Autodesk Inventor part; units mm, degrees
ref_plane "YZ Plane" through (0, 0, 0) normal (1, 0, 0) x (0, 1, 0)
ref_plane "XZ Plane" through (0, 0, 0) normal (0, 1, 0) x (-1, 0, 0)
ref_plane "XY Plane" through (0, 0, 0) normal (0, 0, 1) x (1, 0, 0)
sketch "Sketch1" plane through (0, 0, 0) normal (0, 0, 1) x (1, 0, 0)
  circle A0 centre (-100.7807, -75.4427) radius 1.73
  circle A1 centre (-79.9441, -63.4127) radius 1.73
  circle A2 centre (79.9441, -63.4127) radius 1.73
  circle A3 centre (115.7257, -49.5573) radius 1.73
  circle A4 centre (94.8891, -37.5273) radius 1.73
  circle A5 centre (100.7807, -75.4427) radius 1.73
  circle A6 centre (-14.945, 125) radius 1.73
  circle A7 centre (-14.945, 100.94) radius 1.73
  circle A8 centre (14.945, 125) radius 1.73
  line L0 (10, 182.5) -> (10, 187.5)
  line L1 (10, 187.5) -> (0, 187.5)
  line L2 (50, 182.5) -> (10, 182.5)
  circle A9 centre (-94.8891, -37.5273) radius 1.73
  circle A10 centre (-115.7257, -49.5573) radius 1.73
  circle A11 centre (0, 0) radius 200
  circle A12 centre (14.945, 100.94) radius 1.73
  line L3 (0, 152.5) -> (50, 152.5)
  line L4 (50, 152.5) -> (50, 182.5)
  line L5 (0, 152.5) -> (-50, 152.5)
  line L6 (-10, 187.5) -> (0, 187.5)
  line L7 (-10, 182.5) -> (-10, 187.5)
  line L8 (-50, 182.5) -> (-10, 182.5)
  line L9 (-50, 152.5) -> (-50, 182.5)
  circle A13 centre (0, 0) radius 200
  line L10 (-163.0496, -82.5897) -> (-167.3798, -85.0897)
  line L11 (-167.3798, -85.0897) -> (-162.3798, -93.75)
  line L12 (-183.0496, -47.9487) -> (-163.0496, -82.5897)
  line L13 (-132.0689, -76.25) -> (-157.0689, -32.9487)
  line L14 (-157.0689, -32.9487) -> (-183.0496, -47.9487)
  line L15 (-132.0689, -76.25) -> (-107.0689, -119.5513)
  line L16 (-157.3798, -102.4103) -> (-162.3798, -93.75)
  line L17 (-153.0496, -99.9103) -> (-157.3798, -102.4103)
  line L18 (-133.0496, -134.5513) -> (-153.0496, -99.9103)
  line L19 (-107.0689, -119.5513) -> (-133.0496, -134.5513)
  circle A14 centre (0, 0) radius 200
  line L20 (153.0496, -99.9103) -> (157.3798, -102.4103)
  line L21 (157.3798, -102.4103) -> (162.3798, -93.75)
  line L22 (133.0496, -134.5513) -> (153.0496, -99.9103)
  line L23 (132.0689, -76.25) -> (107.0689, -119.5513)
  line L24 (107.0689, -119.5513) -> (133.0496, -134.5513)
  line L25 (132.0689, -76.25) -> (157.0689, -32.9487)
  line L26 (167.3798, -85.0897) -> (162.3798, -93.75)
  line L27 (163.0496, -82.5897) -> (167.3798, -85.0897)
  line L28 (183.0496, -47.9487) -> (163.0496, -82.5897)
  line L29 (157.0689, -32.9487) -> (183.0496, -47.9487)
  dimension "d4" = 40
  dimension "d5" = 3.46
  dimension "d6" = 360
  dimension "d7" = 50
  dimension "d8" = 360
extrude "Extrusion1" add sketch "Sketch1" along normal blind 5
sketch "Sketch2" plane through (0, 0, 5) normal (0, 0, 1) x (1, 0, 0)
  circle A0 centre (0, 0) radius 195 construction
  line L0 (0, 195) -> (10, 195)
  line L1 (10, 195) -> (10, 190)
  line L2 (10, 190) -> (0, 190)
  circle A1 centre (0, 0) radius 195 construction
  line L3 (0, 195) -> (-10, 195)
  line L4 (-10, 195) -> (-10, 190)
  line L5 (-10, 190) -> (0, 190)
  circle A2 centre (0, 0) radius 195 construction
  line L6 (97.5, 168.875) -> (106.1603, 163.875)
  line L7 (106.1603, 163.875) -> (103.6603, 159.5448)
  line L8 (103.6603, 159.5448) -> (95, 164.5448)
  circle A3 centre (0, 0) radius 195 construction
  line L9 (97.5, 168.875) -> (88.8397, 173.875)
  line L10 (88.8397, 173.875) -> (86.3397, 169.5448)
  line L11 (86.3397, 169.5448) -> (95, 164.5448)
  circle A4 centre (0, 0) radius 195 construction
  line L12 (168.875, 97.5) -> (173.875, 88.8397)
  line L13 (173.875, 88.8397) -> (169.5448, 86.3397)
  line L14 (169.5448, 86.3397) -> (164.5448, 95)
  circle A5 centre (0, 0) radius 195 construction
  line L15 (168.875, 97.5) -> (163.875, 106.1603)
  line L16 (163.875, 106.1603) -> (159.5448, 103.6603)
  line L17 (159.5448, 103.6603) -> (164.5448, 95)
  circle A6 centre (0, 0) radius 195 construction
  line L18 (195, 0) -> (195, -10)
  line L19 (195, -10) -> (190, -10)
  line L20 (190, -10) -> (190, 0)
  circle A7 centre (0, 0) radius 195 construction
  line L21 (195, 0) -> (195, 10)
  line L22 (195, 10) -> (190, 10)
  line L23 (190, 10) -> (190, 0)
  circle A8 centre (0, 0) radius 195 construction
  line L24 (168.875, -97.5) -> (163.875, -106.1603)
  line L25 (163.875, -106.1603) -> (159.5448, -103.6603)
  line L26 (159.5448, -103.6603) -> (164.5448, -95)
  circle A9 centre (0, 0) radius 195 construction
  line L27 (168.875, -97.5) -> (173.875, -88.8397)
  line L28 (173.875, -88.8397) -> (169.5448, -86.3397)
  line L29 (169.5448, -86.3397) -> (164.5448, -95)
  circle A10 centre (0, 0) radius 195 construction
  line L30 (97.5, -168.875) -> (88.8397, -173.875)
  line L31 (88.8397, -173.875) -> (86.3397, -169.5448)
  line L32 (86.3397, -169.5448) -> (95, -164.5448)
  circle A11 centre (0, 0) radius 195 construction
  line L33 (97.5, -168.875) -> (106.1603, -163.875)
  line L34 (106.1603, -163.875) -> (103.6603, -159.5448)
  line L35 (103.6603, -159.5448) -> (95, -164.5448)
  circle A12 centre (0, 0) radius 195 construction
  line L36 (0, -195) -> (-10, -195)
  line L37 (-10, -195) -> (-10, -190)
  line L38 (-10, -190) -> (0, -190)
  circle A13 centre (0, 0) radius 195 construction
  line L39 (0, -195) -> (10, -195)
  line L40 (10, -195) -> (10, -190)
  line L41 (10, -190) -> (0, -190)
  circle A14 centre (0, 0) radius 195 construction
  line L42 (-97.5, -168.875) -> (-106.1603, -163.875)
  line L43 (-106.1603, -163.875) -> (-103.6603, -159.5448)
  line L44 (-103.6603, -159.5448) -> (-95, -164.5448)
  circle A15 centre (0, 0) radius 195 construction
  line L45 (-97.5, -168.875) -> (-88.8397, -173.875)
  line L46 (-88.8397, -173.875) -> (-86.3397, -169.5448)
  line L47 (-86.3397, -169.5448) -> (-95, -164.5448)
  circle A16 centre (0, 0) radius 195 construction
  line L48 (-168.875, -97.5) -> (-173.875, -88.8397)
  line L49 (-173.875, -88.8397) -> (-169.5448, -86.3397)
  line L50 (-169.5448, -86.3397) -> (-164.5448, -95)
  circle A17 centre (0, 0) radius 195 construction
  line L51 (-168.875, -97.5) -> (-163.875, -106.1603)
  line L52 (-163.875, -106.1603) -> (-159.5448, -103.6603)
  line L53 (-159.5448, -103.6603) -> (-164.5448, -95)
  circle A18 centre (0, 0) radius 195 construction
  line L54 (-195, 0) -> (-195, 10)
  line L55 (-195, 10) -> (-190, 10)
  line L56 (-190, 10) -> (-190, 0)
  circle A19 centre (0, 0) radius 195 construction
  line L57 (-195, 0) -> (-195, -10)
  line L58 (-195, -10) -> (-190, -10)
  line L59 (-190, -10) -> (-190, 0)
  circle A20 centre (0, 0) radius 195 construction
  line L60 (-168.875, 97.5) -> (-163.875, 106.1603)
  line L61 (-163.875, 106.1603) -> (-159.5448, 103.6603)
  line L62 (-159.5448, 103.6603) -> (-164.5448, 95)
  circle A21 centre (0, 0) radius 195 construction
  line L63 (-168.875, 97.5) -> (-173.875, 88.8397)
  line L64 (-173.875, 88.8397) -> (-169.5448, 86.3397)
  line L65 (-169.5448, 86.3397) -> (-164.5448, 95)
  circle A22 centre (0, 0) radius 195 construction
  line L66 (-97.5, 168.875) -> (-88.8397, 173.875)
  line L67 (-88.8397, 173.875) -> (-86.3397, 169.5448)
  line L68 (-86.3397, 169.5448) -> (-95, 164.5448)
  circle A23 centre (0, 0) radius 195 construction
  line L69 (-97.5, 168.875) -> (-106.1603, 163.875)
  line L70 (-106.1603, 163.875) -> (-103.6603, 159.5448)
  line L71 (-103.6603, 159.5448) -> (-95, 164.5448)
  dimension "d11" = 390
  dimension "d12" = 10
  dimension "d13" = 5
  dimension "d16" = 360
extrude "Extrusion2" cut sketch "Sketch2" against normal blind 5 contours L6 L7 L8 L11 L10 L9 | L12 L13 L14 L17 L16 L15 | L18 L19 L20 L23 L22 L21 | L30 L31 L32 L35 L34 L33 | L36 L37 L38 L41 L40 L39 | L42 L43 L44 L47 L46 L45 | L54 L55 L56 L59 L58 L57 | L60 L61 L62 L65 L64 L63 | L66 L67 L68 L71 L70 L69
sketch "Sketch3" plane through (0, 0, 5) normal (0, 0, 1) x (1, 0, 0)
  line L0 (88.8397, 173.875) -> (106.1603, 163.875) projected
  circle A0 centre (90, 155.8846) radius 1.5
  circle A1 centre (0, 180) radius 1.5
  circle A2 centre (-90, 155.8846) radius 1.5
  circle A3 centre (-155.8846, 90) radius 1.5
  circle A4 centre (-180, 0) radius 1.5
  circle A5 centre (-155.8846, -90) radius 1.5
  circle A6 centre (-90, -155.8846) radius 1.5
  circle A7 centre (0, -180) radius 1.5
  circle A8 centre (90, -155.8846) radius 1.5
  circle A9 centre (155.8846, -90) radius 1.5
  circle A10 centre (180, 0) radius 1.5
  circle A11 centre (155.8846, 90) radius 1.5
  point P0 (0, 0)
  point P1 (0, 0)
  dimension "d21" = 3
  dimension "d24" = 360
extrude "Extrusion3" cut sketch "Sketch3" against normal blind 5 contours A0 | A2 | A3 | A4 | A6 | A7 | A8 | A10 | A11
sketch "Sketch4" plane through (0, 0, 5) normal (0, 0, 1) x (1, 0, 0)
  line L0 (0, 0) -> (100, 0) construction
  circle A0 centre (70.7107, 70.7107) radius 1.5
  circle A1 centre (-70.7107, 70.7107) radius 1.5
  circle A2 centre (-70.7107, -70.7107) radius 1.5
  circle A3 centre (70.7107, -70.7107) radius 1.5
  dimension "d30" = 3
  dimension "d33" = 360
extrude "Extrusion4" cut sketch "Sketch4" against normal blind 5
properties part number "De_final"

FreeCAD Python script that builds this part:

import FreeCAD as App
import Part
import Sketcher

V = App.Vector
Q = App.Units.Quantity

doc = App.newDocument("Part")
params = doc.addObject("Spreadsheet::Sheet", "Params")
for row, (alias, value) in enumerate([
    ("sketch1_diameter", "3.46 mm"),
    ("sketch1_width", "40 mm"),
    ("sketch1_length", "40 mm"),
    ("sketch1_diameter2", "400 mm"),
    ("sketch1_height", "5 mm"),
    ("pad1_length", "5 mm"),
    ("sketch2_width", "5 mm"),
    ("sketch2_length", "5 mm"),
    ("pocket1_length", "5 mm"),
    ("sketch3_diameter", "3 mm"),
    ("pocket2_length", "5 mm"),
    ("sketch4_diameter", "3 mm"),
    ("pocket3_length", "5 mm"),
], start=1):
    params.set(f"A{row}", alias)
    params.set(f"B{row}", "=" + value)
    params.setAlias(f"B{row}", alias)

body = doc.addObject("PartDesign::Body", "Body")

# Sketch on XY plane
sketch1 = body.newObject("Sketcher::SketchObject", "Sketch")
sketch1.AttachmentSupport = (doc.getObject("XY_Plane"), [""])
sketch1.MapMode = "FlatFace"
sketch1.addGeometry(Part.Circle(V(0, 0, 0), V(0, 0, 1), 200), False)
sketch1.addGeometry(Part.LineSegment(V(-167.4, -85.1, 0), V(-163, -82.6, 0)), False)
sketch1.addGeometry(Part.LineSegment(V(-163, -82.6, 0), V(-183, -47.9, 0)), False)
sketch1.addGeometry(Part.LineSegment(V(-183, -47.9, 0), V(-157.1, -32.9, 0)), False)
sketch1.addGeometry(Part.LineSegment(V(-157.1, -32.9, 0), V(-107.1, -119.6, 0)), False)
sketch1.addGeometry(Part.LineSegment(V(-107.1, -119.6, 0), V(-133, -134.6, 0)), False)
sketch1.addGeometry(Part.LineSegment(V(-133, -134.6, 0), V(-153, -99.9, 0)), False)
sketch1.addGeometry(Part.LineSegment(V(-153, -99.9, 0), V(-157.4, -102.4, 0)), False)
sketch1.addGeometry(Part.LineSegment(V(-157.4, -102.4, 0), V(-167.4, -85.1, 0)), False)
sketch1.addGeometry(Part.Circle(V(-100.8, -75.4, 0), V(0, 0, 1), 1.7), False)
sketch1.addGeometry(Part.Circle(V(-115.7, -49.6, 0), V(0, 0, 1), 1.7), False)
sketch1.addGeometry(Part.Circle(V(-79.9, -63.4, 0), V(0, 0, 1), 1.7), False)
sketch1.addGeometry(Part.Circle(V(-94.9, -37.5, 0), V(0, 0, 1), 1.7), False)
sketch1.addGeometry(Part.Circle(V(79.9, -63.4, 0), V(0, 0, 1), 1.7), False)
sketch1.addGeometry(Part.Circle(V(94.9, -37.5, 0), V(0, 0, 1), 1.7), False)
sketch1.addGeometry(Part.Circle(V(100.8, -75.4, 0), V(0, 0, 1), 1.7), False)
sketch1.addGeometry(Part.LineSegment(V(157.4, -102.4, 0), V(153, -99.9, 0)), False)
sketch1.addGeometry(Part.LineSegment(V(153, -99.9, 0), V(133, -134.6, 0)), False)
sketch1.addGeometry(Part.LineSegment(V(133, -134.6, 0), V(107.1, -119.6, 0)), False)
sketch1.addGeometry(Part.LineSegment(V(107.1, -119.6, 0), V(157.1, -32.9, 0)), False)
sketch1.addGeometry(Part.LineSegment(V(157.1, -32.9, 0), V(183, -47.9, 0)), False)
sketch1.addGeometry(Part.LineSegment(V(183, -47.9, 0), V(163, -82.6, 0)), False)
sketch1.addGeometry(Part.LineSegment(V(163, -82.6, 0), V(167.4, -85.1, 0)), False)
sketch1.addGeometry(Part.LineSegment(V(167.4, -85.1, 0), V(157.4, -102.4, 0)), False)
sketch1.addGeometry(Part.Circle(V(115.7, -49.6, 0), V(0, 0, 1), 1.7), False)
sketch1.addGeometry(Part.Circle(V(-14.9, 100.9, 0), V(0, 0, 1), 1.7), False)
sketch1.addGeometry(Part.Circle(V(-14.9, 125, 0), V(0, 0, 1), 1.7), False)
sketch1.addGeometry(Part.Circle(V(14.9, 100.9, 0), V(0, 0, 1), 1.7), False)
sketch1.addGeometry(Part.Circle(V(14.9, 125, 0), V(0, 0, 1), 1.7), False)
sketch1.addGeometry(Part.LineSegment(V(10, 187.5, 0), V(10, 182.5, 0)), False)
sketch1.addGeometry(Part.LineSegment(V(10, 182.5, 0), V(50, 182.5, 0)), False)
sketch1.addGeometry(Part.LineSegment(V(50, 182.5, 0), V(50, 152.5, 0)), False)
sketch1.addGeometry(Part.LineSegment(V(50, 152.5, 0), V(-50, 152.5, 0)), False)
sketch1.addGeometry(Part.LineSegment(V(-50, 152.5, 0), V(-50, 182.5, 0)), False)
sketch1.addGeometry(Part.LineSegment(V(-50, 182.5, 0), V(-10, 182.5, 0)), False)
sketch1.addGeometry(Part.LineSegment(V(-10, 182.5, 0), V(-10, 187.5, 0)), False)
sketch1.addGeometry(Part.LineSegment(V(-10, 187.5, 0), V(10, 187.5, 0)), False)
sketch1.addConstraint(Sketcher.Constraint("Coincident", 1, 2, 2, 1))
sketch1.addConstraint(Sketcher.Constraint("Coincident", 2, 2, 3, 1))
sketch1.addConstraint(Sketcher.Constraint("Coincident", 3, 2, 4, 1))
sketch1.addConstraint(Sketcher.Constraint("Coincident", 4, 2, 5, 1))
sketch1.addConstraint(Sketcher.Constraint("Coincident", 5, 2, 6, 1))
sketch1.addConstraint(Sketcher.Constraint("Coincident", 6, 2, 7, 1))
sketch1.addConstraint(Sketcher.Constraint("Coincident", 7, 2, 8, 1))
sketch1.addConstraint(Sketcher.Constraint("Coincident", 8, 2, 1, 1))
sketch1.addConstraint(Sketcher.Constraint("Coincident", 16, 2, 17, 1))
sketch1.addConstraint(Sketcher.Constraint("Coincident", 17, 2, 18, 1))
sketch1.addConstraint(Sketcher.Constraint("Coincident", 18, 2, 19, 1))
sketch1.addConstraint(Sketcher.Constraint("Coincident", 19, 2, 20, 1))
sketch1.addConstraint(Sketcher.Constraint("Coincident", 20, 2, 21, 1))
sketch1.addConstraint(Sketcher.Constraint("Coincident", 21, 2, 22, 1))
sketch1.addConstraint(Sketcher.Constraint("Coincident", 22, 2, 23, 1))
sketch1.addConstraint(Sketcher.Constraint("Coincident", 23, 2, 16, 1))
sketch1.addConstraint(Sketcher.Constraint("Coincident", 29, 2, 30, 1))
sketch1.addConstraint(Sketcher.Constraint("Coincident", 30, 2, 31, 1))
sketch1.addConstraint(Sketcher.Constraint("Coincident", 31, 2, 32, 1))
sketch1.addConstraint(Sketcher.Constraint("Coincident", 32, 2, 33, 1))
sketch1.addConstraint(Sketcher.Constraint("Coincident", 33, 2, 34, 1))
sketch1.addConstraint(Sketcher.Constraint("Coincident", 34, 2, 35, 1))
sketch1.addConstraint(Sketcher.Constraint("Coincident", 35, 2, 36, 1))
sketch1.addConstraint(Sketcher.Constraint("Coincident", 36, 2, 29, 1))
sketch1.addConstraint(Sketcher.Constraint("Vertical", 29))
sketch1.addConstraint(Sketcher.Constraint("Horizontal", 30))
sketch1.addConstraint(Sketcher.Constraint("Vertical", 31))
sketch1.addConstraint(Sketcher.Constraint("Horizontal", 32))
sketch1.addConstraint(Sketcher.Constraint("Vertical", 33))
sketch1.addConstraint(Sketcher.Constraint("Horizontal", 34))
sketch1.addConstraint(Sketcher.Constraint("Vertical", 35))
sketch1.addConstraint(Sketcher.Constraint("Horizontal", 36))
sketch1.addConstraint(Sketcher.Constraint("Coincident", 0, 3, -1, 1))
sketch1.addConstraint(Sketcher.Constraint("Equal", 9, 10))
sketch1.addConstraint(Sketcher.Constraint("Equal", 10, 11))
sketch1.addConstraint(Sketcher.Constraint("Equal", 11, 12))
sketch1.addConstraint(Sketcher.Constraint("Equal", 12, 13))
sketch1.addConstraint(Sketcher.Constraint("Equal", 13, 14))
sketch1.addConstraint(Sketcher.Constraint("Equal", 14, 15))
sketch1.addConstraint(Sketcher.Constraint("Equal", 15, 24))
sketch1.addConstraint(Sketcher.Constraint("Equal", 24, 25))
sketch1.addConstraint(Sketcher.Constraint("Equal", 25, 26))
sketch1.addConstraint(Sketcher.Constraint("Equal", 26, 27))
sketch1.addConstraint(Sketcher.Constraint("Equal", 27, 28))
sketch1.addConstraint(Sketcher.Constraint("Symmetric", 11, 3, 13, 3, -2))
sketch1.addConstraint(Sketcher.Constraint("Symmetric", 12, 3, 14, 3, -2))
sketch1.addConstraint(Sketcher.Constraint("Symmetric", 9, 3, 15, 3, -2))
sketch1.addConstraint(Sketcher.Constraint("Symmetric", 10, 3, 24, 3, -2))
sketch1.addConstraint(Sketcher.Constraint("Symmetric", 25, 3, 27, 3, -2))
sketch1.addConstraint(Sketcher.Constraint("Symmetric", 26, 3, 28, 3, -2))
sketch1.addConstraint(Sketcher.Constraint("Symmetric", 6, 2, 16, 2, -2))
sketch1.addConstraint(Sketcher.Constraint("Symmetric", 5, 2, 17, 2, -2))
sketch1.addConstraint(Sketcher.Constraint("Symmetric", 4, 2, 18, 2, -2))
sketch1.addConstraint(Sketcher.Constraint("Symmetric", 3, 2, 19, 2, -2))
sketch1.addConstraint(Sketcher.Constraint("Symmetric", 2, 2, 20, 2, -2))
sketch1.addConstraint(Sketcher.Constraint("Symmetric", 1, 2, 21, 2, -2))
sketch1.addConstraint(Sketcher.Constraint("Symmetric", 8, 2, 22, 2, -2))
sketch1.addConstraint(Sketcher.Constraint("Symmetric", 7, 2, 23, 2, -2))
sketch1.addConstraint(Sketcher.Constraint("Symmetric", 30, 2, 33, 2, -2))
sketch1.addConstraint(Sketcher.Constraint("Perpendicular", 1, 2))
sketch1.addConstraint(Sketcher.Constraint("Perpendicular", 2, 3))
sketch1.addConstraint(Sketcher.Constraint("Perpendicular", 3, 4))
sketch1.addConstraint(Sketcher.Constraint("Perpendicular", 4, 5))
sketch1.addConstraint(Sketcher.Constraint("Perpendicular", 5, 6))
sketch1.addConstraint(Sketcher.Constraint("Perpendicular", 6, 7))
sketch1.addConstraint(Sketcher.Constraint("Perpendicular", 7, 8))
sketch1.addConstraint(Sketcher.Constraint("Vertical", 25, 3, 26, 3))
sketch1.addConstraint(Sketcher.Constraint("Equal", 30, 34))
sketch1.addConstraint(Sketcher.Constraint("Equal", 3, 5))
sketch1.addConstraint(Sketcher.Constraint("Equal", 2, 6))
sketch1.addConstraint(Sketcher.Constraint("Diameter", 9, 3.46))
sketch1.addConstraint(Sketcher.Constraint("DistanceX", 30, 1, 30, 2, 40.0))
sketch1.addConstraint(Sketcher.Constraint("Distance", 2, 40.0))
sketch1.addConstraint(Sketcher.Constraint("Diameter", 0, 400.0))
sketch1.addConstraint(Sketcher.Constraint("DistanceX", -1, 1, 30, 2, 50.0))
sketch1.addConstraint(Sketcher.Constraint("DistanceY", 29, 2, 29, 1, 5.0))
sketch1.addConstraint(Sketcher.Constraint("DistanceY", 31, 2, 31, 1, 30.0))
sketch1.addConstraint(Sketcher.Constraint("Angle", 1, Q("29.9996 deg")))
sketch1.addConstraint(Sketcher.Constraint("Distance", 1, 5.0))
sketch1.addConstraint(Sketcher.Constraint("Distance", 3, 30.0))
sketch1.addConstraint(Sketcher.Constraint("Distance", 4, 100.0))
sketch1.addConstraint(Sketcher.Constraint("DistanceY", -1, 1, 26, 3, 125.0))
sketch1.addConstraint(Sketcher.Constraint("DistanceY", -1, 1, 29, 2, 182.5))
sketch1.addConstraint(Sketcher.Constraint("DistanceY", -1, 1, 25, 3, 100.94))
sketch1.addConstraint(Sketcher.Constraint("DistanceY", 9, 3, 11, 3, 12.03))
sketch1.addConstraint(Sketcher.Constraint("DistanceY", 10, 3, 12, 3, 12.03))
sketch1.addConstraint(Sketcher.Constraint("DistanceX", 25, 3, 27, 3, 29.89))
sketch1.addConstraint(Sketcher.Constraint("DistanceX", 11, 3, -1, 1, 79.944))
sketch1.addConstraint(Sketcher.Constraint("DistanceX", 12, 3, -1, 1, 94.889))
sketch1.addConstraint(Sketcher.Constraint("DistanceX", 3, 2, -1, 1, 157.069))
sketch1.addConstraint(Sketcher.Constraint("DistanceX", 10, 3, 9, 3, 14.945))
sketch1.addConstraint(Sketcher.Constraint("DistanceX", 1, 2, 10, 3, 47.324))
sketch1.addConstraint(Sketcher.Constraint("DistanceY", 1, 2, 9, 3, 7.147))
sketch1.addConstraint(Sketcher.Constraint("DistanceY", 4, 2, 10, 3, 69.994))
sketch1.addConstraint(Sketcher.Constraint("DistanceY", 9, 3, -1, 1, 75.4427))
sketch1.setExpression("Constraints[70]", "Params.sketch1_diameter")
sketch1.setExpression("Constraints[71]", "Params.sketch1_width")
sketch1.setExpression("Constraints[72]", "Params.sketch1_length")
sketch1.setExpression("Constraints[73]", "Params.sketch1_diameter2")
sketch1.setExpression("Constraints[75]", "Params.sketch1_height")
pad1 = body.newObject("PartDesign::Pad", "Pad")
pad1.Profile = sketch1
pad1.setExpression("Length", "Params.pad1_length")

# Sketch on XY plane
sketch2 = body.newObject("Sketcher::SketchObject", "Sketch001")
sketch2.AttachmentSupport = (doc.getObject("XY_Plane"), [""])
sketch2.MapMode = "FlatFace"
sketch2.AttachmentOffset = App.Placement(V(0, 0, 5), App.Rotation())
sketch2.addGeometry(Part.LineSegment(V(106, 164, 0), V(89, 174, 0)), False)
sketch2.addGeometry(Part.LineSegment(V(89, 174, 0), V(86, 170, 0)), False)
sketch2.addGeometry(Part.LineSegment(V(86, 170, 0), V(104, 160, 0)), False)
sketch2.addGeometry(Part.LineSegment(V(104, 160, 0), V(106, 164, 0)), False)
sketch2.addGeometry(Part.LineSegment(V(174, 89, 0), V(164, 106, 0)), False)
sketch2.addGeometry(Part.LineSegment(V(164, 106, 0), V(160, 104, 0)), False)
sketch2.addGeometry(Part.LineSegment(V(160, 104, 0), V(170, 86, 0)), False)
sketch2.addGeometry(Part.LineSegment(V(170, 86, 0), V(174, 89, 0)), False)
sketch2.addGeometry(Part.LineSegment(V(195, -10, 0), V(195, 10, 0)), False)
sketch2.addGeometry(Part.LineSegment(V(195, 10, 0), V(190, 10, 0)), False)
sketch2.addGeometry(Part.LineSegment(V(190, 10, 0), V(190, -10, 0)), False)
sketch2.addGeometry(Part.LineSegment(V(190, -10, 0), V(195, -10, 0)), False)
sketch2.addGeometry(Part.LineSegment(V(89, -174, 0), V(106, -164, 0)), False)
sketch2.addGeometry(Part.LineSegment(V(106, -164, 0), V(104, -160, 0)), False)
sketch2.addGeometry(Part.LineSegment(V(104, -160, 0), V(86, -170, 0)), False)
sketch2.addGeometry(Part.LineSegment(V(86, -170, 0), V(89, -174, 0)), False)
sketch2.addGeometry(Part.LineSegment(V(-10, -195, 0), V(10, -195, 0)), False)
sketch2.addGeometry(Part.LineSegment(V(10, -195, 0), V(10, -190, 0)), False)
sketch2.addGeometry(Part.LineSegment(V(10, -190, 0), V(-10, -190, 0)), False)
sketch2.addGeometry(Part.LineSegment(V(-10, -190, 0), V(-10, -195, 0)), False)
sketch2.addGeometry(Part.LineSegment(V(-106, -164, 0), V(-89, -174, 0)), False)
sketch2.addGeometry(Part.LineSegment(V(-89, -174, 0), V(-86, -170, 0)), False)
sketch2.addGeometry(Part.LineSegment(V(-86, -170, 0), V(-104, -160, 0)), False)
sketch2.addGeometry(Part.LineSegment(V(-104, -160, 0), V(-106, -164, 0)), False)
sketch2.addGeometry(Part.LineSegment(V(-195, 10, 0), V(-195, -10, 0)), False)
sketch2.addGeometry(Part.LineSegment(V(-195, -10, 0), V(-190, -10, 0)), False)
sketch2.addGeometry(Part.LineSegment(V(-190, -10, 0), V(-190, 10, 0)), False)
sketch2.addGeometry(Part.LineSegment(V(-190, 10, 0), V(-195, 10, 0)), False)
sketch2.addGeometry(Part.LineSegment(V(-164, 106, 0), V(-174, 89, 0)), False)
sketch2.addGeometry(Part.LineSegment(V(-174, 89, 0), V(-170, 86, 0)), False)
sketch2.addGeometry(Part.LineSegment(V(-170, 86, 0), V(-160, 104, 0)), False)
sketch2.addGeometry(Part.LineSegment(V(-160, 104, 0), V(-164, 106, 0)), False)
sketch2.addGeometry(Part.LineSegment(V(-89, 174, 0), V(-106, 164, 0)), False)
sketch2.addGeometry(Part.LineSegment(V(-106, 164, 0), V(-104, 160, 0)), False)
sketch2.addGeometry(Part.LineSegment(V(-104, 160, 0), V(-86, 170, 0)), False)
sketch2.addGeometry(Part.LineSegment(V(-86, 170, 0), V(-89, 174, 0)), False)
sketch2.addConstraint(Sketcher.Constraint("Coincident", 0, 2, 1, 1))
sketch2.addConstraint(Sketcher.Constraint("Coincident", 1, 2, 2, 1))
sketch2.addConstraint(Sketcher.Constraint("Coincident", 2, 2, 3, 1))
sketch2.addConstraint(Sketcher.Constraint("Coincident", 3, 2, 0, 1))
sketch2.addConstraint(Sketcher.Constraint("Coincident", 4, 2, 5, 1))
sketch2.addConstraint(Sketcher.Constraint("Coincident", 5, 2, 6, 1))
sketch2.addConstraint(Sketcher.Constraint("Coincident", 6, 2, 7, 1))
sketch2.addConstraint(Sketcher.Constraint("Coincident", 7, 2, 4, 1))
sketch2.addConstraint(Sketcher.Constraint("Coincident", 8, 2, 9, 1))
sketch2.addConstraint(Sketcher.Constraint("Coincident", 9, 2, 10, 1))
sketch2.addConstraint(Sketcher.Constraint("Coincident", 10, 2, 11, 1))
sketch2.addConstraint(Sketcher.Constraint("Coincident", 11, 2, 8, 1))
sketch2.addConstraint(Sketcher.Constraint("Coincident", 12, 2, 13, 1))
sketch2.addConstraint(Sketcher.Constraint("Coincident", 13, 2, 14, 1))
sketch2.addConstraint(Sketcher.Constraint("Coincident", 14, 2, 15, 1))
sketch2.addConstraint(Sketcher.Constraint("Coincident", 15, 2, 12, 1))
sketch2.addConstraint(Sketcher.Constraint("Coincident", 16, 2, 17, 1))
sketch2.addConstraint(Sketcher.Constraint("Coincident", 17, 2, 18, 1))
sketch2.addConstraint(Sketcher.Constraint("Coincident", 18, 2, 19, 1))
sketch2.addConstraint(Sketcher.Constraint("Coincident", 19, 2, 16, 1))
sketch2.addConstraint(Sketcher.Constraint("Coincident", 20, 2, 21, 1))
sketch2.addConstraint(Sketcher.Constraint("Coincident", 21, 2, 22, 1))
sketch2.addConstraint(Sketcher.Constraint("Coincident", 22, 2, 23, 1))
sketch2.addConstraint(Sketcher.Constraint("Coincident", 23, 2, 20, 1))
sketch2.addConstraint(Sketcher.Constraint("Coincident", 24, 2, 25, 1))
sketch2.addConstraint(Sketcher.Constraint("Coincident", 25, 2, 26, 1))
sketch2.addConstraint(Sketcher.Constraint("Coincident", 26, 2, 27, 1))
sketch2.addConstraint(Sketcher.Constraint("Coincident", 27, 2, 24, 1))
sketch2.addConstraint(Sketcher.Constraint("Coincident", 28, 2, 29, 1))
sketch2.addConstraint(Sketcher.Constraint("Coincident", 29, 2, 30, 1))
sketch2.addConstraint(Sketcher.Constraint("Coincident", 30, 2, 31, 1))
sketch2.addConstraint(Sketcher.Constraint("Coincident", 31, 2, 28, 1))
sketch2.addConstraint(Sketcher.Constraint("Coincident", 32, 2, 33, 1))
sketch2.addConstraint(Sketcher.Constraint("Coincident", 33, 2, 34, 1))
sketch2.addConstraint(Sketcher.Constraint("Coincident", 34, 2, 35, 1))
sketch2.addConstraint(Sketcher.Constraint("Coincident", 35, 2, 32, 1))
sketch2.addConstraint(Sketcher.Constraint("Vertical", 8))
sketch2.addConstraint(Sketcher.Constraint("Horizontal", 9))
sketch2.addConstraint(Sketcher.Constraint("Vertical", 10))
sketch2.addConstraint(Sketcher.Constraint("Horizontal", 11))
sketch2.addConstraint(Sketcher.Constraint("Horizontal", 16))
sketch2.addConstraint(Sketcher.Constraint("Vertical", 17))
sketch2.addConstraint(Sketcher.Constraint("Horizontal", 18))
sketch2.addConstraint(Sketcher.Constraint("Vertical", 19))
sketch2.addConstraint(Sketcher.Constraint("Vertical", 24))
sketch2.addConstraint(Sketcher.Constraint("Horizontal", 25))
sketch2.addConstraint(Sketcher.Constraint("Vertical", 26))
sketch2.addConstraint(Sketcher.Constraint("Horizontal", 27))
sketch2.addConstraint(Sketcher.Constraint("Symmetric", 0, 2, 20, 2, -1, 1))
sketch2.addConstraint(Sketcher.Constraint("Symmetric", 1, 2, 21, 2, -1, 1))
sketch2.addConstraint(Sketcher.Constraint("Symmetric", 2, 2, 22, 2, -1, 1))
sketch2.addConstraint(Sketcher.Constraint("Symmetric", 3, 2, 23, 2, -1, 1))
sketch2.addConstraint(Sketcher.Constraint("Symmetric", 8, 2, 24, 2, -1, 1))
sketch2.addConstraint(Sketcher.Constraint("Symmetric", 10, 2, 26, 2, -1, 1))
sketch2.addConstraint(Sketcher.Constraint("Symmetric", 12, 2, 32, 2, -1, 1))
sketch2.addConstraint(Sketcher.Constraint("Symmetric", 13, 2, 33, 2, -1, 1))
sketch2.addConstraint(Sketcher.Constraint("Symmetric", 14, 2, 34, 2, -1, 1))
sketch2.addConstraint(Sketcher.Constraint("Symmetric", 15, 2, 35, 2, -1, 1))
sketch2.addConstraint(Sketcher.Constraint("Symmetric", 15, 2, 20, 2, -2))
sketch2.addConstraint(Sketcher.Constraint("Symmetric", 14, 2, 21, 2, -2))
sketch2.addConstraint(Sketcher.Constraint("Symmetric", 13, 2, 22, 2, -2))
sketch2.addConstraint(Sketcher.Constraint("Symmetric", 12, 2, 23, 2, -2))
sketch2.addConstraint(Sketcher.Constraint("Symmetric", 7, 2, 28, 2, -2))
sketch2.addConstraint(Sketcher.Constraint("Symmetric", 6, 2, 29, 2, -2))
sketch2.addConstraint(Sketcher.Constraint("Symmetric", 5, 2, 30, 2, -2))
sketch2.addConstraint(Sketcher.Constraint("Symmetric", 4, 2, 31, 2, -2))
sketch2.addConstraint(Sketcher.Constraint("Perpendicular", 0, 1))
sketch2.addConstraint(Sketcher.Constraint("Perpendicular", 1, 2))
sketch2.addConstraint(Sketcher.Constraint("Perpendicular", 2, 3))
sketch2.addConstraint(Sketcher.Constraint("Perpendicular", 4, 5))
sketch2.addConstraint(Sketcher.Constraint("Perpendicular", 5, 6))
sketch2.addConstraint(Sketcher.Constraint("Perpendicular", 6, 7))
sketch2.addConstraint(Sketcher.Constraint("Parallel", 7, 12))
sketch2.addConstraint(Sketcher.Constraint("Horizontal", 11, 2, 24, 2))
sketch2.addConstraint(Sketcher.Constraint("Equal", 18, 8))
sketch2.addConstraint(Sketcher.Constraint("Equal", 27, 17))
sketch2.addConstraint(Sketcher.Constraint("Equal", 2, 4))
sketch2.addConstraint(Sketcher.Constraint("Equal", 3, 5))
sketch2.addConstraint(Sketcher.Constraint("DistanceX", 9, 2, 9, 1, 5.0))
sketch2.addConstraint(Sketcher.Constraint("Distance", 1, 5.0))
sketch2.addConstraint(Sketcher.Constraint("DistanceY", -1, 1, 8, 2, 10.0))
sketch2.addConstraint(Sketcher.Constraint("DistanceX", -1, 1, 16, 2, 10.0))
sketch2.addConstraint(Sketcher.Constraint("DistanceY", 2, 2, 1, 2, 10.0))
sketch2.addConstraint(Sketcher.Constraint("Angle", 0, Q("150.0001 deg")))
sketch2.addConstraint(Sketcher.Constraint("DistanceX", -1, 1, 8, 2, 195.0))
sketch2.addConstraint(Sketcher.Constraint("DistanceY", 16, 2, -1, 1, 195.0))
sketch2.addConstraint(Sketcher.Constraint("DistanceY", -1, 1, 0, 2, 173.875))
sketch2.addConstraint(Sketcher.Constraint("DistanceX", -1, 1, 4, 2, 163.875))
sketch2.addConstraint(Sketcher.Constraint("DistanceX", 1, 2, 5, 2, 73.205))
sketch2.addConstraint(Sketcher.Constraint("DistanceY", 6, 2, 2, 2, 73.205))
sketch2.setExpression("Constraints[78]", "Params.sketch2_width")
sketch2.setExpression("Constraints[79]", "Params.sketch2_length")
pocket1 = body.newObject("PartDesign::Pocket", "Pocket")
pocket1.Profile = sketch2
pocket1.setExpression("Length", "Params.pocket1_length")

# Sketch on XY plane
sketch3 = body.newObject("Sketcher::SketchObject", "Sketch002")
sketch3.AttachmentSupport = (doc.getObject("XY_Plane"), [""])
sketch3.MapMode = "FlatFace"
sketch3.AttachmentOffset = App.Placement(V(0, 0, 5), App.Rotation())
sketch3.addGeometry(Part.Circle(V(90, 155.9, 0), V(0, 0, 1), 1.5), False)
sketch3.addGeometry(Part.Circle(V(-90, 155.9, 0), V(0, 0, 1), 1.5), False)
sketch3.addGeometry(Part.Circle(V(-155.9, 90, 0), V(0, 0, 1), 1.5), False)
sketch3.addGeometry(Part.Circle(V(-180, 0, 0), V(0, 0, 1), 1.5), False)
sketch3.addGeometry(Part.Circle(V(-90, -155.9, 0), V(0, 0, 1), 1.5), False)
sketch3.addGeometry(Part.Circle(V(0, -180, 0), V(0, 0, 1), 1.5), False)
sketch3.addGeometry(Part.Circle(V(90, -155.9, 0), V(0, 0, 1), 1.5), False)
sketch3.addGeometry(Part.Circle(V(180, 0, 0), V(0, 0, 1), 1.5), False)
sketch3.addGeometry(Part.Circle(V(155.9, 90, 0), V(0, 0, 1), 1.5), False)
sketch3.addConstraint(Sketcher.Constraint("Equal", 0, 1))
sketch3.addConstraint(Sketcher.Constraint("Equal", 1, 2))
sketch3.addConstraint(Sketcher.Constraint("Equal", 2, 3))
sketch3.addConstraint(Sketcher.Constraint("Equal", 3, 4))
sketch3.addConstraint(Sketcher.Constraint("Equal", 4, 5))
sketch3.addConstraint(Sketcher.Constraint("Equal", 5, 6))
sketch3.addConstraint(Sketcher.Constraint("Equal", 6, 7))
sketch3.addConstraint(Sketcher.Constraint("Equal", 7, 8))
sketch3.addConstraint(Sketcher.Constraint("Symmetric", 0, 3, 4, 3, -1, 1))
sketch3.addConstraint(Sketcher.Constraint("Symmetric", 1, 3, 6, 3, -1, 1))
sketch3.addConstraint(Sketcher.Constraint("Symmetric", 3, 3, 7, 3, -1, 1))
sketch3.addConstraint(Sketcher.Constraint("Symmetric", 0, 3, 1, 3, -2))
sketch3.addConstraint(Sketcher.Constraint("Symmetric", 2, 3, 8, 3, -2))
sketch3.addConstraint(Sketcher.Constraint("PointOnObject", 3, 3, -1))
sketch3.addConstraint(Sketcher.Constraint("PointOnObject", 5, 3, -2))
sketch3.addConstraint(Sketcher.Constraint("Diameter", 0, 3.0))
sketch3.addConstraint(Sketcher.Constraint("DistanceX", -1, 1, 0, 3, 90.0))
sketch3.addConstraint(Sketcher.Constraint("DistanceY", -1, 1, 2, 3, 90.0))
sketch3.addConstraint(Sketcher.Constraint("DistanceX", 3, 3, -1, 1, 180.0))
sketch3.addConstraint(Sketcher.Constraint("DistanceY", 5, 3, -1, 1, 180.0))
sketch3.addConstraint(Sketcher.Constraint("DistanceY", -1, 1, 0, 3, 155.8846))
sketch3.addConstraint(Sketcher.Constraint("DistanceX", 2, 3, -1, 1, 155.8846))
sketch3.setExpression("Constraints[15]", "Params.sketch3_diameter")
pocket2 = body.newObject("PartDesign::Pocket", "Pocket001")
pocket2.Profile = sketch3
pocket2.setExpression("Length", "Params.pocket2_length")

# Sketch on XY plane
sketch4 = body.newObject("Sketcher::SketchObject", "Sketch003")
sketch4.AttachmentSupport = (doc.getObject("XY_Plane"), [""])
sketch4.MapMode = "FlatFace"
sketch4.AttachmentOffset = App.Placement(V(0, 0, 5), App.Rotation())
sketch4.addGeometry(Part.Circle(V(70.7, 70.7, 0), V(0, 0, 1), 1.5), False)
sketch4.addGeometry(Part.Circle(V(-70.7, 70.7, 0), V(0, 0, 1), 1.5), False)
sketch4.addGeometry(Part.Circle(V(-70.7, -70.7, 0), V(0, 0, 1), 1.5), False)
sketch4.addGeometry(Part.Circle(V(70.7, -70.7, 0), V(0, 0, 1), 1.5), False)
sketch4.addConstraint(Sketcher.Constraint("Equal", 0, 1))
sketch4.addConstraint(Sketcher.Constraint("Equal", 1, 2))
sketch4.addConstraint(Sketcher.Constraint("Equal", 2, 3))
sketch4.addConstraint(Sketcher.Constraint("Symmetric", 0, 3, 2, 3, -1, 1))
sketch4.addConstraint(Sketcher.Constraint("Symmetric", 1, 3, 3, 3, -1, 1))
sketch4.addConstraint(Sketcher.Constraint("Symmetric", 0, 3, 1, 3, -2))
sketch4.addConstraint(Sketcher.Constraint("Diameter", 0, 3.0))
sketch4.addConstraint(Sketcher.Constraint("DistanceX", -1, 1, 0, 3, 70.7107))
sketch4.addConstraint(Sketcher.Constraint("DistanceY", -1, 1, 0, 3, 70.7107))
sketch4.setExpression("Constraints[6]", "Params.sketch4_diameter")
pocket3 = body.newObject("PartDesign::Pocket", "Pocket002")
pocket3.Profile = sketch4
pocket3.setExpression("Length", "Params.pocket3_length")

doc.recompute()
